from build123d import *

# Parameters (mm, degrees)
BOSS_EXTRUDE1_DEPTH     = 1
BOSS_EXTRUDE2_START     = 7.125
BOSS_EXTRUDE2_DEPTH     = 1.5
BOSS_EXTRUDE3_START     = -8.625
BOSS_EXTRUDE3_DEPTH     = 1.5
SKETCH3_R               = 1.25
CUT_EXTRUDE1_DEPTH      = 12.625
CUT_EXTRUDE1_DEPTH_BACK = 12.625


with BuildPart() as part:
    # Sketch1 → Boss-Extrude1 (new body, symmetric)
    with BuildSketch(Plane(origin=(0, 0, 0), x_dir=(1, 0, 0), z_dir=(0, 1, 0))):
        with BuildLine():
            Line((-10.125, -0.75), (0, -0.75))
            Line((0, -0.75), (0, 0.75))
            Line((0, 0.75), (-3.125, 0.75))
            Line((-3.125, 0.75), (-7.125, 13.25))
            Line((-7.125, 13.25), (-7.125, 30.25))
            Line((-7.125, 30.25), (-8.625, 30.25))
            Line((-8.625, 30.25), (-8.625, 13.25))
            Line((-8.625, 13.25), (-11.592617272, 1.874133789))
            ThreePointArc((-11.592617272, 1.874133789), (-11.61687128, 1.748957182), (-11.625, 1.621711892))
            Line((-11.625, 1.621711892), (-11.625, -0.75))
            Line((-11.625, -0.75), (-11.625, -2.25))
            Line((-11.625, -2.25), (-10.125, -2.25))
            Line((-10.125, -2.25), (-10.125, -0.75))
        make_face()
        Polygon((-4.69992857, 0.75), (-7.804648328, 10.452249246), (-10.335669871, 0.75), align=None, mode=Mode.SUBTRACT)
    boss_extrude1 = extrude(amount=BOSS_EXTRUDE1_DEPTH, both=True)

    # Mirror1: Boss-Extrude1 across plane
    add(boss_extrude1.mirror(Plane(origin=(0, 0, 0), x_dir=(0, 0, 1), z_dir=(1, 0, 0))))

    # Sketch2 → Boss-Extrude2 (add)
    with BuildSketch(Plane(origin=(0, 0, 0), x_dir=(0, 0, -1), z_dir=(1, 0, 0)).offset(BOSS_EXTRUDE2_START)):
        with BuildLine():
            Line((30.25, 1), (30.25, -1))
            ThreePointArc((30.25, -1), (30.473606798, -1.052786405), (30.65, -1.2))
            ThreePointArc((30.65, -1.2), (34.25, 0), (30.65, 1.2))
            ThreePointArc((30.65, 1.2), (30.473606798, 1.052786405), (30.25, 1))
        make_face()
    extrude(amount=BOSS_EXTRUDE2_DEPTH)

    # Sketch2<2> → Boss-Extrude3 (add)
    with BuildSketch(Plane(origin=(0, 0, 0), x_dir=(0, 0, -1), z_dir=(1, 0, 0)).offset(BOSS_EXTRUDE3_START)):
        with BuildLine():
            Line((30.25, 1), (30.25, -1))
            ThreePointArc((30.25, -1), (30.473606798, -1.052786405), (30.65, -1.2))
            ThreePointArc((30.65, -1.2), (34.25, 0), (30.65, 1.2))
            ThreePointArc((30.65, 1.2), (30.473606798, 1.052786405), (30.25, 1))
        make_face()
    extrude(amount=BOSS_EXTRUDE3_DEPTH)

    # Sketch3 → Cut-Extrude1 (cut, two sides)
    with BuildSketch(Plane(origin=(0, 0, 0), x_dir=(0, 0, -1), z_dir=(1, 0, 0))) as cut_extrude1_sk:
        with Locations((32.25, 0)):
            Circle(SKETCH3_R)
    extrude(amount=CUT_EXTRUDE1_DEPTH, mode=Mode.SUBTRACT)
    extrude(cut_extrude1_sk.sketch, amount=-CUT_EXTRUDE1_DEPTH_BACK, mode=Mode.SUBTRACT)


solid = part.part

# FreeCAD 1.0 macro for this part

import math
import FreeCAD as App
import Part
import Sketcher
Q = App.Units.Quantity


def add_polygon(sketch, points):
    """Adds a closed chain of lines whose ends are joined by coincident constraints."""
    first, n = sketch.GeometryCount, len(points)
    for a, b in zip(points, points[1:] + points[:1]):
        sketch.addGeometry(Part.LineSegment(App.Vector(*a, 0), App.Vector(*b, 0)), False)
    for i in range(n):
        sketch.addConstraint(Sketcher.Constraint("Coincident", first + i, 2, first + (i + 1) % n, 1))

doc = App.newDocument("Part")
body = doc.addObject("PartDesign::Body", "Body")

# Sketch on XZ plane
sketch1 = doc.addObject("Sketcher::SketchObject", "Sketch")
body.addObject(sketch1)
sketch1.AttachmentSupport = (doc.XZ_Plane, [""])
sketch1.MapMode = "FlatFace"
sketch1.addGeometry(Part.LineSegment(App.Vector(-10.12, 0.75, 0), App.Vector(0, 0.75, 0)), False)  # 0
sketch1.addGeometry(Part.LineSegment(App.Vector(0, 0.75, 0), App.Vector(0, -0.75, 0)), False)  # 1
sketch1.addGeometry(Part.LineSegment(App.Vector(0, -0.75, 0), App.Vector(-3.12, -0.75, 0)), False)  # 2
sketch1.addGeometry(Part.LineSegment(App.Vector(-3.12, -0.75, 0), App.Vector(-7.12, -13.25, 0)), False)  # 3
sketch1.addGeometry(Part.LineSegment(App.Vector(-7.12, -13.25, 0), App.Vector(-7.12, -30.25, 0)), False)  # 4
sketch1.addGeometry(Part.LineSegment(App.Vector(-7.12, -30.25, 0), App.Vector(-8.62, -30.25, 0)), False)  # 5
sketch1.addGeometry(Part.LineSegment(App.Vector(-8.62, -30.25, 0), App.Vector(-8.62, -13.25, 0)), False)  # 6
sketch1.addGeometry(Part.LineSegment(App.Vector(-8.62, -13.25, 0), App.Vector(-11.59, -1.87, 0)), False)  # 7
sketch1.addGeometry(Part.ArcOfCircle(Part.Circle(App.Vector(-10.63, -1.62, 0), App.Vector(0, 0, 1), 1), math.radians(180), math.radians(194.62)), False)  # 8
sketch1.addGeometry(Part.LineSegment(App.Vector(-11.62, -1.62, 0), App.Vector(-11.62, 2.25, 0)), False)  # 9
sketch1.addGeometry(Part.LineSegment(App.Vector(-11.62, 2.25, 0), App.Vector(-10.12, 2.25, 0)), False)  # 10
sketch1.addGeometry(Part.LineSegment(App.Vector(-10.12, 2.25, 0), App.Vector(-10.12, 0.75, 0)), False)  # 11
add_polygon(sketch1, [(-7.8, -10.45), (-4.7, -0.75), (-10.34, -0.75)])  # lines 12-14
sketch1.addConstraint(Sketcher.Constraint("Coincident", 0, 2, 1, 1))
sketch1.addConstraint(Sketcher.Constraint("Coincident", 1, 2, 2, 1))
sketch1.addConstraint(Sketcher.Constraint("Coincident", 2, 2, 3, 1))
sketch1.addConstraint(Sketcher.Constraint("Coincident", 3, 2, 4, 1))
sketch1.addConstraint(Sketcher.Constraint("Coincident", 4, 2, 5, 1))
sketch1.addConstraint(Sketcher.Constraint("Coincident", 5, 2, 6, 1))
sketch1.addConstraint(Sketcher.Constraint("Coincident", 6, 2, 7, 1))
sketch1.addConstraint(Sketcher.Constraint("Tangent", 7, 2, 8, 2))
sketch1.addConstraint(Sketcher.Constraint("Tangent", 8, 1, 9, 1))
sketch1.addConstraint(Sketcher.Constraint("Coincident", 9, 2, 10, 1))
sketch1.addConstraint(Sketcher.Constraint("Coincident", 10, 2, 11, 1))
sketch1.addConstraint(Sketcher.Constraint("Coincident", 11, 2, 0, 1))
sketch1.addConstraint(Sketcher.Constraint("Horizontal", 0))
sketch1.addConstraint(Sketcher.Constraint("Vertical", 1))
sketch1.addConstraint(Sketcher.Constraint("Horizontal", 2))
sketch1.addConstraint(Sketcher.Constraint("Vertical", 4))
sketch1.addConstraint(Sketcher.Constraint("Horizontal", 5))
sketch1.addConstraint(Sketcher.Constraint("Vertical", 6))
sketch1.addConstraint(Sketcher.Constraint("Vertical", 9))
sketch1.addConstraint(Sketcher.Constraint("Horizontal", 10))
sketch1.addConstraint(Sketcher.Constraint("Vertical", 11))
sketch1.addConstraint(Sketcher.Constraint("Horizontal", 13))
sketch1.addConstraint(Sketcher.Constraint("Symmetric", 0, 2, 1, 2, -1, 1))
sketch1.addConstraint(Sketcher.Constraint("Parallel", 3, 12))
sketch1.addConstraint(Sketcher.Constraint("Parallel", 7, 14))
sketch1.addConstraint(Sketcher.Constraint("Horizontal", 3, 2, 6, 2))
sketch1.addConstraint(Sketcher.Constraint("Horizontal", 2, 2, 12, 2))
sketch1.addConstraint(Sketcher.Constraint("Equal", 5, 10))
sketch1.addConstraint(Sketcher.Constraint("Equal", 10, 1))
sketch1.addConstraint(Sketcher.Constraint("Equal", 1, 11))
sketch1.addConstraint(Sketcher.Constraint("Radius", 8, Q("1 mm")))
sketch1.addConstraint(Sketcher.Constraint("DistanceY", 4, 2, 4, 1, Q("17 mm")))
sketch1.addConstraint(Sketcher.Constraint("DistanceX", 5, 2, 5, 1, Q("1.5 mm")))
sketch1.addConstraint(Sketcher.Constraint("DistanceX", 3, 2, 2, 2, Q("4 mm")))
sketch1.addConstraint(Sketcher.Constraint("DistanceY", 3, 2, 0, 2, Q("14 mm")))
sketch1.addConstraint(Sketcher.Constraint("DistanceX", 8, 3, 5, 2, Q("2 mm")))
sketch1.addConstraint(Sketcher.Constraint("DistanceX", 0, 1, 0, 2, Q("10.125 mm")))
sketch1.addConstraint(Sketcher.Constraint("Distance", 12, Q("10.1869 mm")))
sketch1.addConstraint(Sketcher.Constraint("DistanceX", 13, 2, 13, 1, Q("5.635741 mm")))
sketch1.addConstraint(Sketcher.Constraint("DistanceX", 12, 2, -1, 1, Q("4.699929 mm")))
pad1 = doc.addObject("PartDesign::Pad", "Pad")
body.addObject(pad1)
pad1.Profile = sketch1
pad1.Length = 2
pad1.Midplane = True
doc.recompute()

mirrored = doc.addObject("PartDesign::Mirrored", "Mirrored")
body.addObject(mirrored)
mirrored.Originals = [pad1]
mirrored.MirrorPlane = (doc.YZ_Plane, [""])
body.Tip = mirrored

# Sketch on YZ plane
sketch2 = doc.addObject("Sketcher::SketchObject", "Sketch001")
body.addObject(sketch2)
sketch2.AttachmentSupport = (doc.YZ_Plane, [""])
sketch2.MapMode = "FlatFace"
sketch2.AttachmentOffset = App.Placement(App.Vector(0, 0, 7.125), App.Rotation())
sketch2.addGeometry(Part.LineSegment(App.Vector(1, -30.25, 0), App.Vector(-1, -30.25, 0)), False)
sketch2.addGeometry(Part.ArcOfCircle(Part.Circle(App.Vector(-1.5, -30.25, 0), App.Vector(0, 0, 1), 0.5), math.radians(-53), math.radians(0)), False)
sketch2.addGeometry(Part.ArcOfCircle(Part.Circle(App.Vector(0, -32.25, 0), App.Vector(0, 0, 1), 2), math.radians(127), math.radians(413)), False)
sketch2.addGeometry(Part.ArcOfCircle(Part.Circle(App.Vector(1.5, -30.25, 0), App.Vector(0, 0, 1), 0.5), math.radians(-180), math.radians(-127)), False)
sketch2.addConstraint(Sketcher.Constraint("Coincident", 0, 2, 1, 2))
sketch2.addConstraint(Sketcher.Constraint("Tangent", 1, 1, 2, 1))
sketch2.addConstraint(Sketcher.Constraint("Tangent", 2, 2, 3, 2))
sketch2.addConstraint(Sketcher.Constraint("Coincident", 3, 1, 0, 1))
sketch2.addConstraint(Sketcher.Constraint("Horizontal", 0))
sketch2.addConstraint(Sketcher.Constraint("Equal", 1, 3))
sketch2.addConstraint(Sketcher.Constraint("Symmetric", 1, 3, 3, 3, -2))
sketch2.addConstraint(Sketcher.Constraint("Horizontal", 3, 3, 0, 2))
sketch2.addConstraint(Sketcher.Constraint("Radius", 2, Q("2 mm")))
sketch2.addConstraint(Sketcher.Constraint("Radius", 1, Q("0.5 mm")))
sketch2.addConstraint(Sketcher.Constraint("DistanceX", 0, 2, 0, 1, Q("2 mm")))
sketch2.addConstraint(Sketcher.Constraint("DistanceY", 1, 3, -1, 1, Q("30.25 mm")))
pad2 = doc.addObject("PartDesign::Pad", "Pad001")
body.addObject(pad2)
pad2.Profile = sketch2
pad2.Length = 1.5

# Sketch on YZ plane
sketch3 = doc.addObject("Sketcher::SketchObject", "Sketch002")
body.addObject(sketch3)
sketch3.AttachmentSupport = (doc.YZ_Plane, [""])
sketch3.MapMode = "FlatFace"
sketch3.AttachmentOffset = App.Placement(App.Vector(0, 0, -8.625), App.Rotation())
sketch3.addGeometry(Part.LineSegment(App.Vector(1, -30.25, 0), App.Vector(-1, -30.25, 0)), False)
sketch3.addGeometry(Part.ArcOfCircle(Part.Circle(App.Vector(-1.5, -30.25, 0), App.Vector(0, 0, 1), 0.5), math.radians(-53), math.radians(0)), False)
sketch3.addGeometry(Part.ArcOfCircle(Part.Circle(App.Vector(0, -32.25, 0), App.Vector(0, 0, 1), 2), math.radians(127), math.radians(413)), False)
sketch3.addGeometry(Part.ArcOfCircle(Part.Circle(App.Vector(1.5, -30.25, 0), App.Vector(0, 0, 1), 0.5), math.radians(-180), math.radians(-127)), False)
sketch3.addConstraint(Sketcher.Constraint("Coincident", 0, 2, 1, 2))
sketch3.addConstraint(Sketcher.Constraint("Tangent", 1, 1, 2, 1))
sketch3.addConstraint(Sketcher.Constraint("Tangent", 2, 2, 3, 2))
sketch3.addConstraint(Sketcher.Constraint("Coincident", 3, 1, 0, 1))
sketch3.addConstraint(Sketcher.Constraint("Horizontal", 0))
sketch3.addConstraint(Sketcher.Constraint("Equal", 1, 3))
sketch3.addConstraint(Sketcher.Constraint("Symmetric", 1, 3, 3, 3, -2))
sketch3.addConstraint(Sketcher.Constraint("Horizontal", 3, 3, 0, 2))
sketch3.addConstraint(Sketcher.Constraint("Radius", 2, Q("2 mm")))
sketch3.addConstraint(Sketcher.Constraint("Radius", 1, Q("0.5 mm")))
sketch3.addConstraint(Sketcher.Constraint("DistanceX", 0, 2, 0, 1, Q("2 mm")))
sketch3.addConstraint(Sketcher.Constraint("DistanceY", 1, 3, -1, 1, Q("30.25 mm")))
pad3 = doc.addObject("PartDesign::Pad", "Pad002")
body.addObject(pad3)
pad3.Profile = sketch3
pad3.Length = 1.5

# Sketch on YZ plane
sketch4 = doc.addObject("Sketcher::SketchObject", "Sketch003")
body.addObject(sketch4)
sketch4.AttachmentSupport = (doc.YZ_Plane, [""])
sketch4.MapMode = "FlatFace"
sketch4.addGeometry(Part.Circle(App.Vector(0, -32.2, 0), App.Vector(0, 0, 1), 1.2), False)
sketch4.addConstraint(Sketcher.Constraint("PointOnObject", 0, 3, -2))
sketch4.addConstraint(Sketcher.Constraint("Diameter", 0, Q("2.5 mm")))
sketch4.addConstraint(Sketcher.Constraint("DistanceY", 0, 3, -1, 1, Q("32.25 mm")))
pocket1 = doc.addObject("PartDesign::Pocket", "Pocket")
body.addObject(pocket1)
pocket1.Profile = sketch4
pocket1.Type = "ThroughAll"
pocket1.Midplane = True

doc.recompute()
